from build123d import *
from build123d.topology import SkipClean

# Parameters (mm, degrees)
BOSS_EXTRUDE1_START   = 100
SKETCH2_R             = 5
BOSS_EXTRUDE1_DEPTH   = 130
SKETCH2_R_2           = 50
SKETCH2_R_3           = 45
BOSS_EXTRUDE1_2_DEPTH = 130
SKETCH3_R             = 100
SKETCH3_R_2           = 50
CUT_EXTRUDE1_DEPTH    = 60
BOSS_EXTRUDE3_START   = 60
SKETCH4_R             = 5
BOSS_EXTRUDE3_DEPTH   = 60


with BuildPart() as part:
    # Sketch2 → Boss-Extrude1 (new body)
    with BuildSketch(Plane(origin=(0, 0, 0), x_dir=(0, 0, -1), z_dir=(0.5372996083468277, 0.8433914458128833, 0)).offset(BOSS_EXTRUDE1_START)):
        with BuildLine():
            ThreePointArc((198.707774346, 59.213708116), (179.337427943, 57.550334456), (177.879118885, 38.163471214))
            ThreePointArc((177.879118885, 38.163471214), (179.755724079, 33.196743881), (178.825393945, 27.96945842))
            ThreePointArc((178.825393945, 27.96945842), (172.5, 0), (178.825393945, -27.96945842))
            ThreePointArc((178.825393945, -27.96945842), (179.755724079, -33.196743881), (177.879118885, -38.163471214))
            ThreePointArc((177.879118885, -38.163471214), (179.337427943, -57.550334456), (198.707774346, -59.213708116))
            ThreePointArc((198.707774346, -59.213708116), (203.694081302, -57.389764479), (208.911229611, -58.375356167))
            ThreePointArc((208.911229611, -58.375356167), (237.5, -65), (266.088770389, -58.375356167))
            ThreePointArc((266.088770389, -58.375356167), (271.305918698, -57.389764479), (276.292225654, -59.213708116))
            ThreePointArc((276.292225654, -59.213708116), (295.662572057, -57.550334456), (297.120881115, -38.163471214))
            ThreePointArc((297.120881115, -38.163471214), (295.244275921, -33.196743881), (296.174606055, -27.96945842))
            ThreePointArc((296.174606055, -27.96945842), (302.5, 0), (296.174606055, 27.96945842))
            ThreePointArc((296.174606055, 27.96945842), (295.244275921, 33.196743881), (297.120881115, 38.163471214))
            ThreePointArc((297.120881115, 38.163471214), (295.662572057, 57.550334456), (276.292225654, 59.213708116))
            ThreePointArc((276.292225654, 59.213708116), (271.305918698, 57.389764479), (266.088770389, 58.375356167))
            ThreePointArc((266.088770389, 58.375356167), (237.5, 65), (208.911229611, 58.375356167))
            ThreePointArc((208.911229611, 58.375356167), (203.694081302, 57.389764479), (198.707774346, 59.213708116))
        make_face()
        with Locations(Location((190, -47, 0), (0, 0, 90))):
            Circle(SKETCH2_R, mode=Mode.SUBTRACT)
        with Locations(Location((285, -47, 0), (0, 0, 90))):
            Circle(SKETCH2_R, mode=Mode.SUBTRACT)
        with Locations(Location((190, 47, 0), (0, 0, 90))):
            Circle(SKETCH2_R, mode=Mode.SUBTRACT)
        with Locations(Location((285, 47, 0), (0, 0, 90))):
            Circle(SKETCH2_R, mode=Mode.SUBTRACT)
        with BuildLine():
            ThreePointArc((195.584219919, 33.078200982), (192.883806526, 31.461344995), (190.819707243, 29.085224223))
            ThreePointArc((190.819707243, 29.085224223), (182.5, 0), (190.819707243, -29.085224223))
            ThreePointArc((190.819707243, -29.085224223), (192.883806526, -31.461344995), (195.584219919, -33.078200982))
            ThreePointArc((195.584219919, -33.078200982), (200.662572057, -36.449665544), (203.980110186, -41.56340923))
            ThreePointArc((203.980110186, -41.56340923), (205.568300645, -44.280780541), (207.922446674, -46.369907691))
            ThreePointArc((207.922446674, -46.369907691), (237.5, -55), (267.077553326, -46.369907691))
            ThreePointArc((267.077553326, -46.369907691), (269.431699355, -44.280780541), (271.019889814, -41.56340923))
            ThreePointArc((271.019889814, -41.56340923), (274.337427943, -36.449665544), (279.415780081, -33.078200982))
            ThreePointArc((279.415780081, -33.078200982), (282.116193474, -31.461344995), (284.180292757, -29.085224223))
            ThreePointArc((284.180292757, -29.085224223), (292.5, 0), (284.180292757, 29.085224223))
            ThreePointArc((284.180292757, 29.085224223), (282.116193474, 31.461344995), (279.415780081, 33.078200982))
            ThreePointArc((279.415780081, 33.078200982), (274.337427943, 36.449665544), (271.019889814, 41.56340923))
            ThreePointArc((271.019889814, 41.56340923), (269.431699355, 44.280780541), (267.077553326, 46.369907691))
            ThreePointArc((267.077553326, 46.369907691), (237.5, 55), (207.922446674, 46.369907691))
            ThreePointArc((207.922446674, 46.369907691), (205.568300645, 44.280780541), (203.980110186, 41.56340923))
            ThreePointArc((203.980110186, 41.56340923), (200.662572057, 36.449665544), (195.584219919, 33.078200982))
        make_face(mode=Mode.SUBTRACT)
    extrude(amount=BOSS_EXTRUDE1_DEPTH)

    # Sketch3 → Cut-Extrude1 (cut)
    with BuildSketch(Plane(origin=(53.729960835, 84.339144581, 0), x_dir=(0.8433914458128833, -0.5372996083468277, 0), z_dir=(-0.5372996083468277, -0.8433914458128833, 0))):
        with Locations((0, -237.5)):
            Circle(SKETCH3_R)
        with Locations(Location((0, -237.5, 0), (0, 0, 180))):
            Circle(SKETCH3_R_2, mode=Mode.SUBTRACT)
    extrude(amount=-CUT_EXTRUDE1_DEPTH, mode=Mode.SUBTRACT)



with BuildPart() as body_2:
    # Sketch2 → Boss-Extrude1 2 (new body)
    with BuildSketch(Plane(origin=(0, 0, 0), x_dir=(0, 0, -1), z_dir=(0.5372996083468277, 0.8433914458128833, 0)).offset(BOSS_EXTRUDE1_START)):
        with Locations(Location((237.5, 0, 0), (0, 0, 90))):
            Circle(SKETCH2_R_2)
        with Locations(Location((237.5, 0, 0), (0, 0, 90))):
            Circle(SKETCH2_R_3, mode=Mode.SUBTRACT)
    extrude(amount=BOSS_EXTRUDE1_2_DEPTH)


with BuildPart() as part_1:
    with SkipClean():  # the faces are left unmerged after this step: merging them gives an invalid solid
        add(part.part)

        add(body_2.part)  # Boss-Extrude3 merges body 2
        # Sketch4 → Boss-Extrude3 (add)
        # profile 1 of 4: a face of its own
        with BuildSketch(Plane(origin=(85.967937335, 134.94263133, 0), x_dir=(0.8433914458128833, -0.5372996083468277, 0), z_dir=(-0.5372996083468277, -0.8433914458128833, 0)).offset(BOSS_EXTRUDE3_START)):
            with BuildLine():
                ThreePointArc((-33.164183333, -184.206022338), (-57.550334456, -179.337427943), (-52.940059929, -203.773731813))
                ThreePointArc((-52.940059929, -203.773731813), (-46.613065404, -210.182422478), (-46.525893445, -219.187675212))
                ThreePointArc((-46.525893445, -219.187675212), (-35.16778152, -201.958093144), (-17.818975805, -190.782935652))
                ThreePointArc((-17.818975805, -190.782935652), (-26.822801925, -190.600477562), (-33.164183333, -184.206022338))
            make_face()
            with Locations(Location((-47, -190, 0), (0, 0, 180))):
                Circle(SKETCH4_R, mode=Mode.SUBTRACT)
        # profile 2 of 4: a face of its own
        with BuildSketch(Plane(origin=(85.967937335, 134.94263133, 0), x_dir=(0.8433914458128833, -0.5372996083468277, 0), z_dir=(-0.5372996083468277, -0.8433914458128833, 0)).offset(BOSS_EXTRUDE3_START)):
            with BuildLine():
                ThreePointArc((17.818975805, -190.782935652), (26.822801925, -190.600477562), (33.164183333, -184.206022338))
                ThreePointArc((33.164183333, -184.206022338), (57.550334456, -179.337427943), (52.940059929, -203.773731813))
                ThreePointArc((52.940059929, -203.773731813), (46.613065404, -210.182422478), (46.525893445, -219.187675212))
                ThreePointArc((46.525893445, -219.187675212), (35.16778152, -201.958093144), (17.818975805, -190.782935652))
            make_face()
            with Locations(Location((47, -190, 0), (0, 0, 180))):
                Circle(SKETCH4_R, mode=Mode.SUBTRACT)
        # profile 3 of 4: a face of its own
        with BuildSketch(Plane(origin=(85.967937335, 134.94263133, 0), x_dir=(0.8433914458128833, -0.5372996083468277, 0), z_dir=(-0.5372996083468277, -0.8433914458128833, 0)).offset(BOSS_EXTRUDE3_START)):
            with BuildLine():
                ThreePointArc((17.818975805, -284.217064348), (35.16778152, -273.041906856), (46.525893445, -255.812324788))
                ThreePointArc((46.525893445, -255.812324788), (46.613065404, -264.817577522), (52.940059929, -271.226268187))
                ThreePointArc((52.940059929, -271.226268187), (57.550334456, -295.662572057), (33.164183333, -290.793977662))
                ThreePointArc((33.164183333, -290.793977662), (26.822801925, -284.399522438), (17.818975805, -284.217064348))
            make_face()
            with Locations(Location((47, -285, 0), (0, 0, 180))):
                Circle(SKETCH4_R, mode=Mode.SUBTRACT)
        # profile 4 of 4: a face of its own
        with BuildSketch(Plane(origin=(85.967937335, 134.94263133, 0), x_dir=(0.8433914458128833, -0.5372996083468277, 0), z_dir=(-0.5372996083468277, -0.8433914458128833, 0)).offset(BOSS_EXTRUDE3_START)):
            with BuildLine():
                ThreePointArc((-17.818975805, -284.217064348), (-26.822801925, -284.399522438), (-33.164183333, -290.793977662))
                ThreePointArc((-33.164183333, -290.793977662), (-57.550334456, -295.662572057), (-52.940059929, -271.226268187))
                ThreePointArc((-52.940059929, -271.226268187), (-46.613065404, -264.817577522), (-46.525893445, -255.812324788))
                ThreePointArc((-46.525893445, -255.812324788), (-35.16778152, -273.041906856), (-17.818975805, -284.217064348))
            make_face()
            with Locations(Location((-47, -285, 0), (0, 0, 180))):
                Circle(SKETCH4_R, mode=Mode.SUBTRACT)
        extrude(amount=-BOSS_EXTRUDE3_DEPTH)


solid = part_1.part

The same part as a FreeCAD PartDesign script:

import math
import FreeCAD as App
import Part
import Sketcher
Q = App.Units.Quantity

doc = App.newDocument("Part")
body = doc.addObject("PartDesign::Body", "Body")

# Sketch on an angled plane
sketch1 = body.newObject("Sketcher::SketchObject", "Sketch")
sketch1.Placement = App.Placement(App.Vector(53.729961, 84.339145, 0), App.Rotation(App.Vector(0, 0, -1), App.Vector(-0.843391446, 0.537299608, 0), App.Vector(0.537299608, 0.843391446, 0), "ZXY"))
sketch1.addGeometry([
    Part.ArcOfCircle(Part.Circle(App.Vector(190, 47, 0), App.Vector(0, 0, 1), 15), math.radians(55), math.radians(216)),  # 0
    Part.ArcOfCircle(Part.Circle(App.Vector(170, 32, 0), App.Vector(0, 0, 1), 10), math.radians(-25), math.radians(36)),  # 1
    Part.ArcOfCircle(Part.Circle(App.Vector(238, 0, 0), App.Vector(0, 0, 1), 65), math.radians(155), math.radians(205)),  # 2
    Part.ArcOfCircle(Part.Circle(App.Vector(170, -32, 0), App.Vector(0, 0, 1), 10), math.radians(-36), math.radians(25)),  # 3
    Part.ArcOfCircle(Part.Circle(App.Vector(190, -47, 0), App.Vector(0, 0, 1), 15), math.radians(144), math.radians(305)),  # 4
    Part.ArcOfCircle(Part.Circle(App.Vector(205, -67, 0), App.Vector(0, 0, 1), 10), math.radians(64), math.radians(125)),  # 5
    Part.ArcOfCircle(Part.Circle(App.Vector(238, 0, 0), App.Vector(0, 0, 1), 65), math.radians(-116), math.radians(-64)),  # 6
    Part.ArcOfCircle(Part.Circle(App.Vector(270, -67, 0), App.Vector(0, 0, 1), 10), math.radians(55), math.radians(116)),  # 7
    Part.ArcOfCircle(Part.Circle(App.Vector(285, -47, 0), App.Vector(0, 0, 1), 15), math.radians(-125), math.radians(36)),  # 8
    Part.ArcOfCircle(Part.Circle(App.Vector(305, -32, 0), App.Vector(0, 0, 1), 10), math.radians(155), math.radians(216)),  # 9
    Part.ArcOfCircle(Part.Circle(App.Vector(237, 0, 0), App.Vector(0, 0, 1), 65), math.radians(-25), math.radians(25)),  # 10
    Part.ArcOfCircle(Part.Circle(App.Vector(305, 32, 0), App.Vector(0, 0, 1), 10), math.radians(144), math.radians(205)),  # 11
    Part.ArcOfCircle(Part.Circle(App.Vector(285, 47, 0), App.Vector(0, 0, 1), 15), math.radians(-36), math.radians(125)),  # 12
    Part.ArcOfCircle(Part.Circle(App.Vector(270, 67, 0), App.Vector(0, 0, 1), 10), math.radians(-116), math.radians(-55)),  # 13
    Part.ArcOfCircle(Part.Circle(App.Vector(238, 0, 0), App.Vector(0, 0, 1), 65), math.radians(64), math.radians(116)),  # 14
    Part.ArcOfCircle(Part.Circle(App.Vector(205, 67, 0), App.Vector(0, 0, 1), 10), math.radians(-125), math.radians(-64)),  # 15
    Part.Circle(App.Vector(190, -47, 0), App.Vector(0, 0, 1), 5),  # 16
    Part.Circle(App.Vector(285, -47, 0), App.Vector(0, 0, 1), 5),  # 17
    Part.Circle(App.Vector(190, 47, 0), App.Vector(0, 0, 1), 5),  # 18
    Part.ArcOfCircle(Part.Circle(App.Vector(199, 24, 0), App.Vector(0, 0, 1), 10), math.radians(112), math.radians(148)),  # 19
    Part.ArcOfCircle(Part.Circle(App.Vector(190, 47, 0), App.Vector(0, 0, 1), 15), math.radians(-68), math.radians(-21)),  # 20
    Part.ArcOfCircle(Part.Circle(App.Vector(213, 38, 0), App.Vector(0, 0, 1), 10), math.radians(123), math.radians(159)),  # 21
    Part.ArcOfCircle(Part.Circle(App.Vector(238, 0, 0), App.Vector(0, 0, 1), 55), math.radians(57), math.radians(123)),  # 22
    Part.ArcOfCircle(Part.Circle(App.Vector(262, 38, 0), App.Vector(0, 0, 1), 10), math.radians(21), math.radians(57)),  # 23
    Part.ArcOfCircle(Part.Circle(App.Vector(285, 47, 0), App.Vector(0, 0, 1), 15), math.radians(-159), math.radians(-112)),  # 24
    Part.ArcOfCircle(Part.Circle(App.Vector(276, 24, 0), App.Vector(0, 0, 1), 10), math.radians(32), math.radians(68)),  # 25
    Part.ArcOfCircle(Part.Circle(App.Vector(238, 0, 0), App.Vector(0, 0, 1), 55), math.radians(-32), math.radians(32)),  # 26
    Part.ArcOfCircle(Part.Circle(App.Vector(276, -24, 0), App.Vector(0, 0, 1), 10), math.radians(-68), math.radians(-32)),  # 27
    Part.ArcOfCircle(Part.Circle(App.Vector(285, -47, 0), App.Vector(0, 0, 1), 15), math.radians(112), math.radians(159)),  # 28
    Part.ArcOfCircle(Part.Circle(App.Vector(262, -38, 0), App.Vector(0, 0, 1), 10), math.radians(-57), math.radians(-21)),  # 29
    Part.ArcOfCircle(Part.Circle(App.Vector(238, 0, 0), App.Vector(0, 0, 1), 55), math.radians(-123), math.radians(-57)),  # 30
    Part.ArcOfCircle(Part.Circle(App.Vector(213, -38, 0), App.Vector(0, 0, 1), 10), math.radians(-159), math.radians(-123)),  # 31
    Part.ArcOfCircle(Part.Circle(App.Vector(190, -47, 0), App.Vector(0, 0, 1), 15), math.radians(21), math.radians(68)),  # 32
    Part.ArcOfCircle(Part.Circle(App.Vector(199, -24, 0), App.Vector(0, 0, 1), 10), math.radians(-148), math.radians(-112)),  # 33
    Part.ArcOfCircle(Part.Circle(App.Vector(237, 0, 0), App.Vector(0, 0, 1), 55), math.radians(148), math.radians(212)),  # 34
    Part.Circle(App.Vector(285, 47, 0), App.Vector(0, 0, 1), 5),  # 35
], False)
sketch1.addConstraint([
    Sketcher.Constraint("Tangent", 0, 2, 1, 2),
    Sketcher.Constraint("Tangent", 1, 1, 2, 1),
    Sketcher.Constraint("Tangent", 2, 2, 3, 2),
    Sketcher.Constraint("Tangent", 3, 1, 4, 1),
    Sketcher.Constraint("Tangent", 4, 2, 5, 2),
    Sketcher.Constraint("Tangent", 5, 1, 6, 1),
    Sketcher.Constraint("Tangent", 6, 2, 7, 2),
    Sketcher.Constraint("Tangent", 7, 1, 8, 1),
    Sketcher.Constraint("Tangent", 8, 2, 9, 2),
    Sketcher.Constraint("Tangent", 9, 1, 10, 1),
    Sketcher.Constraint("Tangent", 10, 2, 11, 2),
    Sketcher.Constraint("Tangent", 11, 1, 12, 1),
    Sketcher.Constraint("Tangent", 12, 2, 13, 2),
    Sketcher.Constraint("Tangent", 13, 1, 14, 1),
    Sketcher.Constraint("Tangent", 14, 2, 15, 2),
    Sketcher.Constraint("Tangent", 15, 1, 0, 1),
    Sketcher.Constraint("Tangent", 19, 1, 20, 1),
    Sketcher.Constraint("Tangent", 20, 2, 21, 2),
    Sketcher.Constraint("Tangent", 21, 1, 22, 2),
    Sketcher.Constraint("Tangent", 22, 1, 23, 2),
    Sketcher.Constraint("Tangent", 23, 1, 24, 1),
    Sketcher.Constraint("Tangent", 24, 2, 25, 2),
    Sketcher.Constraint("Tangent", 25, 1, 26, 2),
    Sketcher.Constraint("Tangent", 26, 1, 27, 2),
    Sketcher.Constraint("Tangent", 27, 1, 28, 1),
    Sketcher.Constraint("Tangent", 28, 2, 29, 2),
    Sketcher.Constraint("Tangent", 29, 1, 30, 2),
    Sketcher.Constraint("Tangent", 30, 1, 31, 2),
    Sketcher.Constraint("Tangent", 31, 1, 32, 1),
    Sketcher.Constraint("Tangent", 32, 2, 33, 2),
    Sketcher.Constraint("Tangent", 33, 1, 34, 2),
    Sketcher.Constraint("Tangent", 34, 1, 19, 2),
    Sketcher.Constraint("Coincident", 6, 3, 2, 3),
    Sketcher.Constraint("Coincident", 10, 3, 2, 3),
    Sketcher.Constraint("Coincident", 14, 3, 2, 3),
    Sketcher.Constraint("Coincident", 16, 3, 4, 3),
    Sketcher.Constraint("Coincident", 17, 3, 8, 3),
    Sketcher.Constraint("Coincident", 18, 3, 0, 3),
    Sketcher.Constraint("Coincident", 20, 3, 0, 3),
    Sketcher.Constraint("Coincident", 22, 3, 2, 3),
    Sketcher.Constraint("Coincident", 24, 3, 12, 3),
    Sketcher.Constraint("Coincident", 26, 3, 2, 3),
    Sketcher.Constraint("Coincident", 28, 3, 8, 3),
    Sketcher.Constraint("Coincident", 30, 3, 2, 3),
    Sketcher.Constraint("Coincident", 32, 3, 4, 3),
    Sketcher.Constraint("Coincident", 34, 3, 2, 3),
    Sketcher.Constraint("Coincident", 35, 3, 12, 3),
    Sketcher.Constraint("Equal", 1, 3),
    Sketcher.Constraint("Equal", 0, 4),
    Sketcher.Constraint("Equal", 3, 5),
    Sketcher.Constraint("Equal", 2, 6),
    Sketcher.Constraint("Equal", 5, 7),
    Sketcher.Constraint("Equal", 4, 8),
    Sketcher.Constraint("Equal", 7, 9),
    Sketcher.Constraint("Equal", 6, 10),
    Sketcher.Constraint("Equal", 9, 11),
    Sketcher.Constraint("Equal", 8, 12),
    Sketcher.Constraint("Equal", 11, 13),
    Sketcher.Constraint("Equal", 10, 14),
    Sketcher.Constraint("Equal", 13, 15),
    Sketcher.Constraint("Equal", 16, 17),
    Sketcher.Constraint("Equal", 17, 18),
    Sketcher.Constraint("Equal", 15, 19),
    Sketcher.Constraint("Equal", 12, 20),
    Sketcher.Constraint("Equal", 19, 21),
    Sketcher.Constraint("Equal", 21, 23),
    Sketcher.Constraint("Equal", 20, 24),
    Sketcher.Constraint("Equal", 23, 25),
    Sketcher.Constraint("Equal", 22, 26),
    Sketcher.Constraint("Equal", 25, 27),
    Sketcher.Constraint("Equal", 24, 28),
    Sketcher.Constraint("Equal", 27, 29),
    Sketcher.Constraint("Equal", 26, 30),
    Sketcher.Constraint("Equal", 29, 31),
    Sketcher.Constraint("Equal", 28, 32),
    Sketcher.Constraint("Equal", 31, 33),
    Sketcher.Constraint("Equal", 30, 34),
    Sketcher.Constraint("Equal", 18, 35),
    Sketcher.Constraint("Symmetric", 1, 3, 3, 3, -1),
    Sketcher.Constraint("Symmetric", 8, 3, 12, 3, -1),
    Sketcher.Constraint("Horizontal", 5, 3, 7, 3),
    Sketcher.Constraint("Horizontal", 4, 3, 8, 3),
    Sketcher.Constraint("Horizontal", 0, 3, 12, 3),
    Sketcher.Constraint("Diameter", 16, Q("10 mm")),
    Sketcher.Constraint("Radius", 0, Q("15 mm")),
    Sketcher.Constraint("Radius", 1, Q("10 mm")),
    Sketcher.Constraint("Radius", 2, Q("65 mm")),
    Sketcher.Constraint("Radius", 22, Q("55 mm")),
    Sketcher.Constraint("DistanceX", -1, 1, 0, 3, Q("190 mm")),
    Sketcher.Constraint("DistanceY", -1, 1, 0, 3, Q("47 mm")),
    Sketcher.Constraint("DistanceX", -1, 1, 8, 3, Q("285 mm")),
])
pad1 = body.newObject("PartDesign::Pad", "Pad")
pad1.Profile = sketch1
pad1.Length = 130

# Sketch on an angled plane
sketch2 = body.newObject("Sketcher::SketchObject", "Sketch001")
sketch2.Placement = App.Placement(App.Vector(53.729961, 84.339145, 0), App.Rotation(App.Vector(0.843391446, -0.537299608, 0), App.Vector(0, 0, 1), App.Vector(-0.537299608, -0.843391446, 0), "ZXY"))
sketch2.addGeometry([
    Part.Circle(App.Vector(0, -237, 0), App.Vector(0, 0, 1), 100),
    Part.Circle(App.Vector(0, -237, 0), App.Vector(0, 0, 1), 50),
], False)
sketch2.addConstraint([
    Sketcher.Constraint("Coincident", 1, 3, 0, 3),
    Sketcher.Constraint("PointOnObject", 0, 3, -2),
    Sketcher.Constraint("Diameter", 0, Q("200 mm")),
    Sketcher.Constraint("Diameter", 1, Q("100 mm")),
    Sketcher.Constraint("DistanceY", 0, 3, -1, 1, Q("237.5 mm")),
])
pocket1 = body.newObject("PartDesign::Pocket", "Pocket")
pocket1.Profile = sketch2
pocket1.Length = 60
body2 = doc.addObject("PartDesign::Body", "Body001")

# Sketch on an angled plane
sketch3 = body2.newObject("Sketcher::SketchObject", "Sketch002")
sketch3.Placement = App.Placement(App.Vector(53.729961, 84.339145, 0), App.Rotation(App.Vector(0, 0, -1), App.Vector(-0.843391446, 0.537299608, 0), App.Vector(0.537299608, 0.843391446, 0), "ZXY"))
sketch3.addGeometry([
    Part.Circle(App.Vector(238, 0, 0), App.Vector(0, 0, 1), 50),
    Part.Circle(App.Vector(238, 0, 0), App.Vector(0, 0, 1), 45),
], False)
sketch3.addConstraint([
    Sketcher.Constraint("Coincident", 1, 3, 0, 3),
    Sketcher.Constraint("PointOnObject", 0, 3, -1),
    Sketcher.Constraint("Diameter", 0, Q("100 mm")),
    Sketcher.Constraint("Diameter", 1, Q("90 mm")),
    Sketcher.Constraint("DistanceX", -1, 1, 0, 3, Q("237.5 mm")),
])
pad2 = body2.newObject("PartDesign::Pad", "Pad001")
pad2.Profile = sketch3
pad2.Length = 130
body.AllowCompound = True
doc.recompute()

boolean = body.newObject("PartDesign::Boolean", "Boolean")
boolean.Type = "Fuse"
boolean.addObjects([body2])

# Sketch on an angled plane
sketch4 = body.newObject("Sketcher::SketchObject", "Sketch003")
sketch4.Placement = App.Placement(App.Vector(53.729961, 84.339145, 0), App.Rotation(App.Vector(0.843391446, -0.537299608, 0), App.Vector(0, 0, 1), App.Vector(-0.537299608, -0.843391446, 0), "ZXY"))
sketch4.addGeometry([
    Part.ArcOfCircle(Part.Circle(App.Vector(-47, -190, 0), App.Vector(0, 0, 1), 15), math.radians(23), math.radians(247)),  # 0
    Part.ArcOfCircle(Part.Circle(App.Vector(-58, -215, 0), App.Vector(0, 0, 1), 12), math.radians(-21), math.radians(67)),  # 1
    Part.ArcOfCircle(Part.Circle(App.Vector(0, -237, 0), App.Vector(0, 0, 1), 50), math.radians(111), math.radians(159)),  # 2
    Part.ArcOfCircle(Part.Circle(App.Vector(-22, -180, 0), App.Vector(0, 0, 1), 12), math.radians(-157), math.radians(-69)),  # 3
    Part.Circle(App.Vector(-47, -190, 0), App.Vector(0, 0, 1), 5),  # 4
    Part.ArcOfCircle(Part.Circle(App.Vector(22, -180, 0), App.Vector(0, 0, 1), 12), math.radians(-111), math.radians(-23)),  # 5
    Part.ArcOfCircle(Part.Circle(App.Vector(0, -237, 0), App.Vector(0, 0, 1), 50), math.radians(21), math.radians(69)),  # 6
    Part.ArcOfCircle(Part.Circle(App.Vector(58, -215, 0), App.Vector(0, 0, 1), 12), math.radians(113), math.radians(201)),  # 7
    Part.ArcOfCircle(Part.Circle(App.Vector(47, -190, 0), App.Vector(0, 0, 1), 15), math.radians(-67), math.radians(157)),  # 8
    Part.Circle(App.Vector(47, -190, 0), App.Vector(0, 0, 1), 5),  # 9
    Part.ArcOfCircle(Part.Circle(App.Vector(0, -237, 0), App.Vector(0, 0, 1), 50), math.radians(-69), math.radians(-21)),  # 10
    Part.ArcOfCircle(Part.Circle(App.Vector(22, -295, 0), App.Vector(0, 0, 1), 12), math.radians(23), math.radians(111)),  # 11
    Part.ArcOfCircle(Part.Circle(App.Vector(47, -285, 0), App.Vector(0, 0, 1), 15), math.radians(-157), math.radians(67)),  # 12
    Part.ArcOfCircle(Part.Circle(App.Vector(58, -260, 0), App.Vector(0, 0, 1), 12), math.radians(159), math.radians(247)),  # 13
    Part.Circle(App.Vector(47, -285, 0), App.Vector(0, 0, 1), 5),  # 14
    Part.ArcOfCircle(Part.Circle(App.Vector(-22, -295, 0), App.Vector(0, 0, 1), 12), math.radians(69), math.radians(157)),  # 15
    Part.ArcOfCircle(Part.Circle(App.Vector(0, -237, 0), App.Vector(0, 0, 1), 50), math.radians(-159), math.radians(-111)),  # 16
    Part.ArcOfCircle(Part.Circle(App.Vector(-58, -260, 0), App.Vector(0, 0, 1), 12), math.radians(-67), math.radians(21)),  # 17
    Part.ArcOfCircle(Part.Circle(App.Vector(-47, -285, 0), App.Vector(0, 0, 1), 15), math.radians(113), math.radians(337)),  # 18
    Part.Circle(App.Vector(-47, -285, 0), App.Vector(0, 0, 1), 5),  # 19
], False)
sketch4.addConstraint([
    Sketcher.Constraint("Tangent", 0, 2, 1, 2),
    Sketcher.Constraint("Tangent", 1, 1, 2, 2),
    Sketcher.Constraint("Tangent", 2, 1, 3, 2),
    Sketcher.Constraint("Tangent", 3, 1, 0, 1),
    Sketcher.Constraint("Tangent", 5, 1, 6, 2),
    Sketcher.Constraint("Tangent", 6, 1, 7, 2),
    Sketcher.Constraint("Tangent", 7, 1, 8, 1),
    Sketcher.Constraint("Tangent", 8, 2, 5, 2),
    Sketcher.Constraint("Tangent", 10, 1, 11, 2),
    Sketcher.Constraint("Tangent", 11, 1, 12, 1),
    Sketcher.Constraint("Tangent", 12, 2, 13, 2),
    Sketcher.Constraint("Tangent", 13, 1, 10, 2),
    Sketcher.Constraint("Tangent", 15, 1, 16, 2),
    Sketcher.Constraint("Tangent", 16, 1, 17, 2),
    Sketcher.Constraint("Tangent", 17, 1, 18, 1),
    Sketcher.Constraint("Tangent", 18, 2, 15, 2),
    Sketcher.Constraint("Coincident", 4, 3, 0, 3),
    Sketcher.Constraint("Coincident", 6, 3, 2, 3),
    Sketcher.Constraint("Coincident", 9, 3, 8, 3),
    Sketcher.Constraint("Coincident", 10, 3, 2, 3),
    Sketcher.Constraint("Coincident", 14, 3, 12, 3),
    Sketcher.Constraint("Coincident", 16, 3, 2, 3),
    Sketcher.Constraint("Coincident", 19, 3, 18, 3),
    Sketcher.Constraint("Equal", 1, 3),
    Sketcher.Constraint("Equal", 3, 5),
    Sketcher.Constraint("Equal", 2, 6),
    Sketcher.Constraint("Equal", 5, 7),
    Sketcher.Constraint("Equal", 0, 8),
    Sketcher.Constraint("Equal", 4, 9),
    Sketcher.Constraint("Equal", 6, 10),
    Sketcher.Constraint("Equal", 7, 11),
    Sketcher.Constraint("Equal", 8, 12),
    Sketcher.Constraint("Equal", 11, 13),
    Sketcher.Constraint("Equal", 9, 14),
    Sketcher.Constraint("Equal", 13, 15),
    Sketcher.Constraint("Equal", 10, 16),
    Sketcher.Constraint("Equal", 15, 17),
    Sketcher.Constraint("Equal", 12, 18),
    Sketcher.Constraint("Equal", 14, 19),
    Sketcher.Constraint("Symmetric", 3, 3, 5, 3, -2),
    Sketcher.Constraint("Symmetric", 12, 3, 18, 3, -2),
    Sketcher.Constraint("Horizontal", 1, 3, 7, 3),
    Sketcher.Constraint("Vertical", 5, 3, 11, 3),
    Sketcher.Constraint("Vertical", 9, 3, 12, 3),
    Sketcher.Constraint("Diameter", 4, Q("10 mm")),
    Sketcher.Constraint("Radius", 0, Q("15 mm")),
    Sketcher.Constraint("Radius", 1, Q("12 mm")),
    Sketcher.Constraint("Radius", 2, Q("50 mm")),
    Sketcher.Constraint("DistanceX", 0, 3, -1, 1, Q("47 mm")),
    Sketcher.Constraint("DistanceY", 0, 3, -1, 1, Q("190 mm")),
    Sketcher.Constraint("DistanceY", 12, 3, -1, 1, Q("285 mm")),
])
pad3 = body.newObject("PartDesign::Pad", "Pad002")
pad3.Profile = sketch4
pad3.Length = 60
pad3.Reversed = True

doc.recompute()
